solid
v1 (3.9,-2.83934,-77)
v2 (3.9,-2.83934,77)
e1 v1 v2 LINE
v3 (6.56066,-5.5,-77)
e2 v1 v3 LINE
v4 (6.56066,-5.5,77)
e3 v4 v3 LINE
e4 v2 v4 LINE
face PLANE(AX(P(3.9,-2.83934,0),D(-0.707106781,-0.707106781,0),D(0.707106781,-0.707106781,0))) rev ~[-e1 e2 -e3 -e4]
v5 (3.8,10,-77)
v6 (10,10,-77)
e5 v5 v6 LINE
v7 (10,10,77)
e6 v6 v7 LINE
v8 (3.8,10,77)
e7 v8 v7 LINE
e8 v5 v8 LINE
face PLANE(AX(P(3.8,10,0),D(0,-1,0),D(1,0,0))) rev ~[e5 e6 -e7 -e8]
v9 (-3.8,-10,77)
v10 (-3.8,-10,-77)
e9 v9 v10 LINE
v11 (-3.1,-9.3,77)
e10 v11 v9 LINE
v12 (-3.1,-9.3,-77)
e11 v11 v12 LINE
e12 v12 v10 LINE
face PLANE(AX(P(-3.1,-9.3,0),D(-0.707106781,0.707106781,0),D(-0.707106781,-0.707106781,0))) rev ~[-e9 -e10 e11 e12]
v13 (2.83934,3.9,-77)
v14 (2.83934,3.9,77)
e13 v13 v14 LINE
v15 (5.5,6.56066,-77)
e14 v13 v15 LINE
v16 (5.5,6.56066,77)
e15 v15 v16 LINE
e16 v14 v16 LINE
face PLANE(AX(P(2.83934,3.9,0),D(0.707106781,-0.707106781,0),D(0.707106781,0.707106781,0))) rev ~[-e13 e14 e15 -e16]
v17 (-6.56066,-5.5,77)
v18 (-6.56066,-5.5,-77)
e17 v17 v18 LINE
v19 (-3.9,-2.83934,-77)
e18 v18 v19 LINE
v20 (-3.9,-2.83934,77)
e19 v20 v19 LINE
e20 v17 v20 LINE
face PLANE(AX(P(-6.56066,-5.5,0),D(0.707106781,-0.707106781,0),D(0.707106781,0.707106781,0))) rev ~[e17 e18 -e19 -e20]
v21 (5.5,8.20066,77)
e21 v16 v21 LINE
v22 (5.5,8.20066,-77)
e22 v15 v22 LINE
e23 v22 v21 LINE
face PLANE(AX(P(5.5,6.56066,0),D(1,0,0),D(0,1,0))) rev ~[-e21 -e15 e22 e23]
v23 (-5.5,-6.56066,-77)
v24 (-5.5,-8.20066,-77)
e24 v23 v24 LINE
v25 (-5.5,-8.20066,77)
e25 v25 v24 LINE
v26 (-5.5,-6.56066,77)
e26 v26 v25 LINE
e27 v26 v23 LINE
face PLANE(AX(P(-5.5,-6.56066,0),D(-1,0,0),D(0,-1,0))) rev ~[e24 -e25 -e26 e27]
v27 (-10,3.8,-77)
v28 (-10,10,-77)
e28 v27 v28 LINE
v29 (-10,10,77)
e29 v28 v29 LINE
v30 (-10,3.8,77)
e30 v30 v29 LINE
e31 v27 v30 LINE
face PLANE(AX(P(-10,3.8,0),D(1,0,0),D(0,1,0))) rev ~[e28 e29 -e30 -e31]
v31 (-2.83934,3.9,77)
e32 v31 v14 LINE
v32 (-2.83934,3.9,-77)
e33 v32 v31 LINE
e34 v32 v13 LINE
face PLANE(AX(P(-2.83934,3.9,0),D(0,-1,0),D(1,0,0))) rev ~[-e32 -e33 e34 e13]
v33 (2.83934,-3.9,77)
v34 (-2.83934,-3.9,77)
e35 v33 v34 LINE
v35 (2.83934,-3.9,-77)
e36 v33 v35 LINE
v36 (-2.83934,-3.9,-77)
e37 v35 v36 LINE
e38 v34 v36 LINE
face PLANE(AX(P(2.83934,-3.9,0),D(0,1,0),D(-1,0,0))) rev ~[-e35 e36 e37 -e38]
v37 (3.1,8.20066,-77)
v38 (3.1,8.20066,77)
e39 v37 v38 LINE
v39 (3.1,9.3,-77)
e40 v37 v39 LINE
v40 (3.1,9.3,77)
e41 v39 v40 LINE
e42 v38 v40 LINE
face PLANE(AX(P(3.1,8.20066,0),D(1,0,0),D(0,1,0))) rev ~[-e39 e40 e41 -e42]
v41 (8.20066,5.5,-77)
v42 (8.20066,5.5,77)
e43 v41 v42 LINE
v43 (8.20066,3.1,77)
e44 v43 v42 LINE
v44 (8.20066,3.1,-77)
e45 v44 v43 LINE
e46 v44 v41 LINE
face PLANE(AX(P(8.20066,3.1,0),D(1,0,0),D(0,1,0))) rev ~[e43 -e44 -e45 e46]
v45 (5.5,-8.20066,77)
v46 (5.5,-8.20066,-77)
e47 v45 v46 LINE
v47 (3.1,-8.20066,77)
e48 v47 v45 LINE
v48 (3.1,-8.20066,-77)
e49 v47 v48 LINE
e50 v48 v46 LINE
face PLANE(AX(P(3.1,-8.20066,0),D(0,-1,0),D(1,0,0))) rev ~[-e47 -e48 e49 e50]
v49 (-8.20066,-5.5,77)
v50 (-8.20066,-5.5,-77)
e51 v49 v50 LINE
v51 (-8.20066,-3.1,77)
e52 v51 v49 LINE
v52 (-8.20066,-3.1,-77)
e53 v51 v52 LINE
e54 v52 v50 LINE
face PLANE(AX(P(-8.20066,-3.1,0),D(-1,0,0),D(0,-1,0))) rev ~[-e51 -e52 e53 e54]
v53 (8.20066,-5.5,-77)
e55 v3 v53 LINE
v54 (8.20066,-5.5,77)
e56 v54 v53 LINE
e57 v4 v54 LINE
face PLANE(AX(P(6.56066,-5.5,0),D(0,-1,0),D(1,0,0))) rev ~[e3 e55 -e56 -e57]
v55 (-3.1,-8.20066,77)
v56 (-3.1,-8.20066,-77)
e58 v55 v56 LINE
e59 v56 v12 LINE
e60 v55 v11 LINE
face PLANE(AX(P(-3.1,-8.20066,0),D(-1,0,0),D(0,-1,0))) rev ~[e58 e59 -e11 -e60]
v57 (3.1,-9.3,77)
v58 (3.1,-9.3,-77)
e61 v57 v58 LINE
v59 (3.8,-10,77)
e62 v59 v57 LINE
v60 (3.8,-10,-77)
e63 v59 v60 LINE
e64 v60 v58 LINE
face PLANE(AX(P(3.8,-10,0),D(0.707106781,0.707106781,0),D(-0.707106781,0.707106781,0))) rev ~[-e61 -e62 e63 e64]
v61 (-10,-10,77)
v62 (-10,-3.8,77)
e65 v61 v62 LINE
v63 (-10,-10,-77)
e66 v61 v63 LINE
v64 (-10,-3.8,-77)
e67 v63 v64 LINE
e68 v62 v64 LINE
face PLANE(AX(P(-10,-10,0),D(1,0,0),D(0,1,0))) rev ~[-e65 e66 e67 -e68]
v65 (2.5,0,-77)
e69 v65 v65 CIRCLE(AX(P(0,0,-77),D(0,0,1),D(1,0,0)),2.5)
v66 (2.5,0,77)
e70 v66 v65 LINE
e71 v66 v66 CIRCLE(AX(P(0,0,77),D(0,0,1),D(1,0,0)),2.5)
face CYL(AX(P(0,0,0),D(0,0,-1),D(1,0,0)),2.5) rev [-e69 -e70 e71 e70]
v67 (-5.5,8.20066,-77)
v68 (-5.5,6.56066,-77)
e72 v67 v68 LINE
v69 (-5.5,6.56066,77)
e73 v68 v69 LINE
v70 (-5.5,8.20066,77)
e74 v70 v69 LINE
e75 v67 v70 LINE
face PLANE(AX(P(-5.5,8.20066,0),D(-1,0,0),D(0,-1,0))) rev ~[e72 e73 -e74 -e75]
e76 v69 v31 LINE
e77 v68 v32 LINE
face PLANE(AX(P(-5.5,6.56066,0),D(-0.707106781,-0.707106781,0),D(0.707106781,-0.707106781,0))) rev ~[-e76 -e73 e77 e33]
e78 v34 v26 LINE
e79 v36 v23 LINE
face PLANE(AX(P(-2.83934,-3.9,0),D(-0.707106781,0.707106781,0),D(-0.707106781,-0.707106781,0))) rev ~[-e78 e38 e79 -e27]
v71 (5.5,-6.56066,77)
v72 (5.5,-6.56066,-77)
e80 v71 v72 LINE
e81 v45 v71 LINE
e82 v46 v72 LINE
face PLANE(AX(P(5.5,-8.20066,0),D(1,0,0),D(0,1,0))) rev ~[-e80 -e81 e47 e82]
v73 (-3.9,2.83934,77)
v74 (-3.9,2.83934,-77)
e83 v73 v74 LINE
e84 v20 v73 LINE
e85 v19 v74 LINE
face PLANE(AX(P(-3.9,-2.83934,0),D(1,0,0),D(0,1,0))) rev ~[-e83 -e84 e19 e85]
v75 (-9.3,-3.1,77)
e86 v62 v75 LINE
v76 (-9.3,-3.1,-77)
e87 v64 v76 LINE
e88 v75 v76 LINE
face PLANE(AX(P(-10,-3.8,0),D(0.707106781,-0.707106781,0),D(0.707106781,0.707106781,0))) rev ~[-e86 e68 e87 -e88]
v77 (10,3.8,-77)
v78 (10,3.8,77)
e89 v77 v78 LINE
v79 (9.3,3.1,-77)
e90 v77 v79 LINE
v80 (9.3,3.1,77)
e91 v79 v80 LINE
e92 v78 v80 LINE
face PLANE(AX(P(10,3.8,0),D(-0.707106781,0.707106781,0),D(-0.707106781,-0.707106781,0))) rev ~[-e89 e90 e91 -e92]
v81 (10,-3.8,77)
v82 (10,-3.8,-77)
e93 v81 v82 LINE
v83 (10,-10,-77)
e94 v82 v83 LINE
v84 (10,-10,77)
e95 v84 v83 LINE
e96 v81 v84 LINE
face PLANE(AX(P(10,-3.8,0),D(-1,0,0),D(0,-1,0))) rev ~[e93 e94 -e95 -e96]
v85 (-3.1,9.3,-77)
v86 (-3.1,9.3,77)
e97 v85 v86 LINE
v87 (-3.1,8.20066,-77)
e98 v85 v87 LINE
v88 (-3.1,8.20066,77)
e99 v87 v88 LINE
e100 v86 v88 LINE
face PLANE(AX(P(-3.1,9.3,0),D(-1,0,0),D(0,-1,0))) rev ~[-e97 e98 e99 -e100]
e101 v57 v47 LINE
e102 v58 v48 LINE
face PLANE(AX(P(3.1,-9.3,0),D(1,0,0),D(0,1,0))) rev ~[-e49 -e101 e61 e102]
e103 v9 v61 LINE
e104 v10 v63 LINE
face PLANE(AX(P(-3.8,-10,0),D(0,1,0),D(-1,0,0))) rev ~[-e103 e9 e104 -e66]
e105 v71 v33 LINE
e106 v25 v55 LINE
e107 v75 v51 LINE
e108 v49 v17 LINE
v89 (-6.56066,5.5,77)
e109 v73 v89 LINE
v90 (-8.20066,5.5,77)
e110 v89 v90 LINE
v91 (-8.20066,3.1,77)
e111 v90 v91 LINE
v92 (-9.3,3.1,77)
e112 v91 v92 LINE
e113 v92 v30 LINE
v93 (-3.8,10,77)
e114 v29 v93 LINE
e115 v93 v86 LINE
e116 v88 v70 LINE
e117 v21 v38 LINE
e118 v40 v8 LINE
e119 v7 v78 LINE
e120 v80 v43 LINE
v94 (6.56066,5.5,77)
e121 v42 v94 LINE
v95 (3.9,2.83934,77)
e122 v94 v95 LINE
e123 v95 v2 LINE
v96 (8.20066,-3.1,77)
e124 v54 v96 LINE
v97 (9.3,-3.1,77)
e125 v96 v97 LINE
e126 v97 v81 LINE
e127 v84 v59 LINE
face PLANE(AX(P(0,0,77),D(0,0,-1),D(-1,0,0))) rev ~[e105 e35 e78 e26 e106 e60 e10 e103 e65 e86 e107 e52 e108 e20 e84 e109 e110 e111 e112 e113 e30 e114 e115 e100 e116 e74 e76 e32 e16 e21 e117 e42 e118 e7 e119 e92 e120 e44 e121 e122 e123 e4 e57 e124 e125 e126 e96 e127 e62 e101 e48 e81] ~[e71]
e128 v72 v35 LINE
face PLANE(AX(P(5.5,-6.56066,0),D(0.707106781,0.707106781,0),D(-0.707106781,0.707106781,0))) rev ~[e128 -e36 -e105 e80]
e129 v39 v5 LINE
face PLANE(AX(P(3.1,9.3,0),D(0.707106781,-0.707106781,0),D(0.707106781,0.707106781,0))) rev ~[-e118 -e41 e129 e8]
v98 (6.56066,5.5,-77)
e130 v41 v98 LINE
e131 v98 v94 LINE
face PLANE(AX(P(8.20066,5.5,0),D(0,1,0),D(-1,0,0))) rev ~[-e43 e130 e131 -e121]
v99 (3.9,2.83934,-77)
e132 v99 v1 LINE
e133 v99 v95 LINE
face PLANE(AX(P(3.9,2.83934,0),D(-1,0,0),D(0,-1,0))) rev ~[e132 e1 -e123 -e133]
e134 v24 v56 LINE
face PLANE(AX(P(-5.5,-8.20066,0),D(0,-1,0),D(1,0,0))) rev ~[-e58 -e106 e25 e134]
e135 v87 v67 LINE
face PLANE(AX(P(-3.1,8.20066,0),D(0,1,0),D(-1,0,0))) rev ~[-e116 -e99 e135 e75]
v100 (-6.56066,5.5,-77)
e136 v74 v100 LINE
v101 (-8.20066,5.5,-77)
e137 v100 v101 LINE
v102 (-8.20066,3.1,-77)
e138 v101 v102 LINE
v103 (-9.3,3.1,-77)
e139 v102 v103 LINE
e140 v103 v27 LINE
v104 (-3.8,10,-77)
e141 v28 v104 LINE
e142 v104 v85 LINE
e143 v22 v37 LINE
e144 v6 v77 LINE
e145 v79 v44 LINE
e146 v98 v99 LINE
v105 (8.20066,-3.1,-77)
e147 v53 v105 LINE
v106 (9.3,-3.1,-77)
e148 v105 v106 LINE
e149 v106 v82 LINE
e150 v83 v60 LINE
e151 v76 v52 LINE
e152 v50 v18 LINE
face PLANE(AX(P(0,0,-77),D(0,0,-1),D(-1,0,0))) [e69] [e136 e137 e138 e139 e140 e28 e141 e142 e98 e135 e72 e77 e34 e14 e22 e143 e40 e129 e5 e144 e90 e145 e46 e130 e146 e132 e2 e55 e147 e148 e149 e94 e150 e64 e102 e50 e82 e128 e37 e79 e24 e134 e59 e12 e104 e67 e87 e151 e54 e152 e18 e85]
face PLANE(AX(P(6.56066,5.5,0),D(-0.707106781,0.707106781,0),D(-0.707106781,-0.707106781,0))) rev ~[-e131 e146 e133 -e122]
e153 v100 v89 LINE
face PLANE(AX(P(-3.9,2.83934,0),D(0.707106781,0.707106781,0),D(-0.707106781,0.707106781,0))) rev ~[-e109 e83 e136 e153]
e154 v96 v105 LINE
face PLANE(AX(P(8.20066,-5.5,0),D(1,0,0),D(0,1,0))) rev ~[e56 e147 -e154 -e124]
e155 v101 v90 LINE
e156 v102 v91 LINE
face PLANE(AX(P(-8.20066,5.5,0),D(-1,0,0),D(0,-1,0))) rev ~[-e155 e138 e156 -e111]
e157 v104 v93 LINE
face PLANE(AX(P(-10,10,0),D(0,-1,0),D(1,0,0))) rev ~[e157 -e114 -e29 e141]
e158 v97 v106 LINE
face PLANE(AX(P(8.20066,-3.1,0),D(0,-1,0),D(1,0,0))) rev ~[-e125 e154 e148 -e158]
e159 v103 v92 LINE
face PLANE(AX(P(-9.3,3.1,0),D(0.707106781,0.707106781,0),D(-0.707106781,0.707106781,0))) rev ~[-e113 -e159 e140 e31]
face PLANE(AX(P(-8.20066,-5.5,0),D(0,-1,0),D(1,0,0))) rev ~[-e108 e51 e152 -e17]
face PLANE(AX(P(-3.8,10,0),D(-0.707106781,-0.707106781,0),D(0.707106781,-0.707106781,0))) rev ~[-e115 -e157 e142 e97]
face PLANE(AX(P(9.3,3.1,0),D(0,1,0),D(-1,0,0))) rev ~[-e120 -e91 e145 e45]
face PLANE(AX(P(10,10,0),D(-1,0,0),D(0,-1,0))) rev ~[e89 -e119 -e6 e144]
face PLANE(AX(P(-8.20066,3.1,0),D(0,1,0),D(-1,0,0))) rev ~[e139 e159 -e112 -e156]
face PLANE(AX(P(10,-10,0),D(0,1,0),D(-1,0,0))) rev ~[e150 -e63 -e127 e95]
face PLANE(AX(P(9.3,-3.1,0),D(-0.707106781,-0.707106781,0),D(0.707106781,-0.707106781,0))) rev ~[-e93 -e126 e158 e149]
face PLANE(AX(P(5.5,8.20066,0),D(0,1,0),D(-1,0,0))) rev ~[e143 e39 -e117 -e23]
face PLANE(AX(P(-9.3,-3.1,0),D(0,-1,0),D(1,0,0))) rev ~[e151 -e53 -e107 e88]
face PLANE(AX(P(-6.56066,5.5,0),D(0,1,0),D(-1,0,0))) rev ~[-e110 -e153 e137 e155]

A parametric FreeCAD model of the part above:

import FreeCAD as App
import Part
import Sketcher


def add_polygon(sketch, points):
    """Adds a closed chain of lines whose ends are joined by coincident constraints."""
    first, n = sketch.GeometryCount, len(points)
    for a, b in zip(points, points[1:] + points[:1]):
        sketch.addGeometry(Part.LineSegment(App.Vector(*a, 0), App.Vector(*b, 0)), False)
    for i in range(n):
        sketch.addConstraint(Sketcher.Constraint("Coincident", first + i, 2, first + (i + 1) % n, 1))

doc = App.newDocument("Part")
body = doc.addObject("PartDesign::Body", "Body")

# Sketch on XY plane
sketch1 = doc.addObject("Sketcher::SketchObject", "Sketch")
body.addObject(sketch1)
sketch1.AttachmentSupport = (doc.XY_Plane, [""])
sketch1.MapMode = "FlatFace"
add_polygon(sketch1, [(6.56066, -5.5), (3.9, -2.83934), (3.9, 2.83934), (6.56066, 5.5), (8.20066, 5.5), (8.20066, 3.1), (9.3, 3.1), (10, 3.8), (10, 10), (3.8, 10), (3.1, 9.3), (3.1, 8.20066), (5.5, 8.20066), (5.5, 6.56066), (2.83934, 3.9), (-2.83934, 3.9), (-5.5, 6.56066), (-5.5, 8.20066), (-3.1, 8.20066), (-3.1, 9.3), (-3.8, 10), (-10, 10), (-10, 3.8), (-9.3, 3.1), (-8.20066, 3.1), (-8.20066, 5.5), (-6.56066, 5.5), (-3.9, 2.83934), (-3.9, -2.83934), (-6.56066, -5.5), (-8.20066, -5.5), (-8.20066, -3.1), (-9.3, -3.1), (-10, -3.8), (-10, -10), (-3.8, -10), (-3.1, -9.3), (-3.1, -8.20066), (-5.5, -8.20066), (-5.5, -6.56066), (-2.83934, -3.9), (2.83934, -3.9), (5.5, -6.56066), (5.5, -8.20066), (3.1, -8.20066), (3.1, -9.3), (3.8, -10), (10, -10), (10, -3.8), (9.3, -3.1), (8.20066, -3.1), (8.20066, -5.5)])  # lines 0-51
sketch1.addGeometry(Part.Circle(App.Vector(0, 0, 0), App.Vector(0, 0, 1), 2.5), False)  # 52
sketch1.addConstraint([
    Sketcher.Constraint("Vertical", 1),
    Sketcher.Constraint("Horizontal", 3),
    Sketcher.Constraint("Vertical", 4),
    Sketcher.Constraint("Horizontal", 5),
    Sketcher.Constraint("Vertical", 7),
    Sketcher.Constraint("Horizontal", 8),
    Sketcher.Constraint("Vertical", 10),
    Sketcher.Constraint("Horizontal", 11),
    Sketcher.Constraint("Vertical", 12),
    Sketcher.Constraint("Horizontal", 14),
    Sketcher.Constraint("Vertical", 16),
    Sketcher.Constraint("Horizontal", 17),
    Sketcher.Constraint("Vertical", 18),
    Sketcher.Constraint("Horizontal", 20),
    Sketcher.Constraint("Vertical", 21),
    Sketcher.Constraint("Horizontal", 23),
    Sketcher.Constraint("Vertical", 24),
    Sketcher.Constraint("Horizontal", 25),
    Sketcher.Constraint("Vertical", 27),
    Sketcher.Constraint("Horizontal", 29),
    Sketcher.Constraint("Vertical", 30),
    Sketcher.Constraint("Horizontal", 31),
    Sketcher.Constraint("Vertical", 33),
    Sketcher.Constraint("Horizontal", 34),
    Sketcher.Constraint("Vertical", 36),
    Sketcher.Constraint("Horizontal", 37),
    Sketcher.Constraint("Vertical", 38),
    Sketcher.Constraint("Horizontal", 40),
    Sketcher.Constraint("Vertical", 42),
    Sketcher.Constraint("Horizontal", 43),
    Sketcher.Constraint("Vertical", 44),
    Sketcher.Constraint("Horizontal", 46),
    Sketcher.Constraint("Vertical", 47),
    Sketcher.Constraint("Horizontal", 49),
    Sketcher.Constraint("Vertical", 50),
    Sketcher.Constraint("Horizontal", 51),
    Sketcher.Constraint("Coincident", 52, 3, -1, 1),
    Sketcher.Constraint("Symmetric", 0, 2, 26, 2, -1, 1),
    Sketcher.Constraint("Symmetric", 2, 2, 28, 2, -1, 1),
    Sketcher.Constraint("Symmetric", 4, 2, 30, 2, -1, 1),
    Sketcher.Constraint("Symmetric", 6, 2, 32, 2, -1, 1),
    Sketcher.Constraint("Symmetric", 8, 2, 34, 2, -1, 1),
    Sketcher.Constraint("Symmetric", 9, 2, 35, 2, -1, 1),
    Sketcher.Constraint("Symmetric", 11, 2, 37, 2, -1, 1),
    Sketcher.Constraint("Symmetric", 13, 2, 39, 2, -1, 1),
    Sketcher.Constraint("Symmetric", 15, 2, 41, 2, -1, 1),
    Sketcher.Constraint("Symmetric", 17, 2, 43, 2, -1, 1),
    Sketcher.Constraint("Symmetric", 19, 2, 45, 2, -1, 1),
    Sketcher.Constraint("Symmetric", 21, 2, 47, 2, -1, 1),
    Sketcher.Constraint("Symmetric", 22, 2, 48, 2, -1, 1),
    Sketcher.Constraint("Symmetric", 24, 2, 50, 2, -1, 1),
    Sketcher.Constraint("Symmetric", 12, 2, 15, 2, -2),
    Sketcher.Constraint("Symmetric", 10, 2, 17, 2, -2),
    Sketcher.Constraint("Symmetric", 8, 2, 19, 2, -2),
    Sketcher.Constraint("Symmetric", 6, 2, 21, 2, -2),
    Sketcher.Constraint("Symmetric", 5, 2, 22, 2, -2),
    Sketcher.Constraint("Symmetric", 3, 2, 24, 2, -2),
    Sketcher.Constraint("Perpendicular", 0, 2),
    Sketcher.Constraint("Parallel", 2, 6),
    Sketcher.Constraint("Parallel", 6, 9),
    Sketcher.Constraint("Parallel", 9, 13),
    Sketcher.Constraint("Perpendicular", 13, 15),
    Sketcher.Constraint("Parallel", 15, 19),
    Sketcher.Constraint("Parallel", 19, 22),
    Sketcher.Constraint("Parallel", 22, 26),
    Sketcher.Constraint("Perpendicular", 26, 28),
    Sketcher.Constraint("Parallel", 28, 32),
    Sketcher.Constraint("Parallel", 35, 39),
    Sketcher.Constraint("Perpendicular", 39, 41),
    Sketcher.Constraint("Parallel", 41, 45),
    Sketcher.Constraint("Horizontal", 1, 2, 26, 2),
    Sketcher.Constraint("Equal", 40, 1),
    Sketcher.Constraint("Equal", 43, 4),
    Sketcher.Constraint("Equal", 46, 7),
    Sketcher.Constraint("Equal", 49, 10),
    Sketcher.Constraint("Equal", 51, 12),
    Sketcher.Constraint("Equal", 6, 9),
    Sketcher.Constraint("Equal", 2, 13),
    Sketcher.Constraint("Diameter", 52, 5.0),
    Sketcher.Constraint("DistanceX", 8, 2, 8, 1, 6.2),
    Sketcher.Constraint("DistanceX", 11, 1, 11, 2, 2.4),
    Sketcher.Constraint("DistanceX", -1, 1, 6, 2, 10.0),
    Sketcher.Constraint("DistanceX", 3, 1, 3, 2, 1.64),
    Sketcher.Constraint("DistanceX", -1, 1, 0, 2, 3.9),
    Sketcher.Constraint("DistanceY", -1, 1, 2, 2, 5.5),
    Sketcher.Constraint("DistanceX", 5, 1, 5, 2, 1.09934),
])
pad1 = doc.addObject("PartDesign::Pad", "Pad")
body.addObject(pad1)
pad1.Profile = sketch1
pad1.Length = 154
pad1.Midplane = True

doc.recompute()
